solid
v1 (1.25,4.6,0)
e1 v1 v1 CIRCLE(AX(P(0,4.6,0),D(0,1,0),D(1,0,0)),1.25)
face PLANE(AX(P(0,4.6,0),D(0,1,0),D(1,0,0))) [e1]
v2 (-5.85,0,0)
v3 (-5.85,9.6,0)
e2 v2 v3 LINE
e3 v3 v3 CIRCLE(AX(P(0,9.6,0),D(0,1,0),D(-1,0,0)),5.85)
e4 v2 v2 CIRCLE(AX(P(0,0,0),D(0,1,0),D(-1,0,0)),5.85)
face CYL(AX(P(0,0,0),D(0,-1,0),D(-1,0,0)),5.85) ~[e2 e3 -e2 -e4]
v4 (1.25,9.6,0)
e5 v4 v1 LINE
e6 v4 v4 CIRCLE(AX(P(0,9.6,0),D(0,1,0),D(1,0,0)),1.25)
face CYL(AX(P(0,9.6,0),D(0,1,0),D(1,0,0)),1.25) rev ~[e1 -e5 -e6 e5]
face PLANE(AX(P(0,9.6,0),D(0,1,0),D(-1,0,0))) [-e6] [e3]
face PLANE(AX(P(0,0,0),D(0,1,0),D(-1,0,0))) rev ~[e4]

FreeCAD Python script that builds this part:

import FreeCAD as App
import Part
import Sketcher

V = App.Vector
Q = App.Units.Quantity

doc = App.newDocument("Part")
body = doc.addObject("PartDesign::Body", "Body")

# Sketch on XZ plane
sketch1 = body.newObject("Sketcher::SketchObject", "Sketch")
sketch1.AttachmentSupport = (doc.getObject("XZ_Plane"), [""])
sketch1.MapMode = "FlatFace"
sketch1.addGeometry(Part.Circle(V(0, 0, 0), V(0, 0, 1), 6), False)
sketch1.addConstraint(Sketcher.Constraint("Coincident", 0, 3, -1, 1))
sketch1.addConstraint(Sketcher.Constraint("Diameter", 0, Q("11.7 mm")))
pad1 = body.newObject("PartDesign::Pad", "Pad")
pad1.Profile = sketch1
pad1.Length = 9.6
pad1.Reversed = True

# Sketch on XZ plane
sketch2 = body.newObject("Sketcher::SketchObject", "Sketch001")
sketch2.AttachmentSupport = (doc.getObject("XZ_Plane"), [""])
sketch2.MapMode = "FlatFace"
sketch2.AttachmentOffset = App.Placement(V(0, 0, -9.6), App.Rotation())
sketch2.addGeometry(Part.Circle(V(0, 0, 0), V(0, 0, 1), 1.2), False)
sketch2.addConstraint(Sketcher.Constraint("Coincident", 0, 3, -1, 1))
sketch2.addConstraint(Sketcher.Constraint("Diameter", 0, Q("2.5 mm")))
pocket1 = body.newObject("PartDesign::Pocket", "Pocket")
pocket1.Profile = sketch2
pocket1.Length = 5
pocket1.Reversed = True

doc.recompute()
